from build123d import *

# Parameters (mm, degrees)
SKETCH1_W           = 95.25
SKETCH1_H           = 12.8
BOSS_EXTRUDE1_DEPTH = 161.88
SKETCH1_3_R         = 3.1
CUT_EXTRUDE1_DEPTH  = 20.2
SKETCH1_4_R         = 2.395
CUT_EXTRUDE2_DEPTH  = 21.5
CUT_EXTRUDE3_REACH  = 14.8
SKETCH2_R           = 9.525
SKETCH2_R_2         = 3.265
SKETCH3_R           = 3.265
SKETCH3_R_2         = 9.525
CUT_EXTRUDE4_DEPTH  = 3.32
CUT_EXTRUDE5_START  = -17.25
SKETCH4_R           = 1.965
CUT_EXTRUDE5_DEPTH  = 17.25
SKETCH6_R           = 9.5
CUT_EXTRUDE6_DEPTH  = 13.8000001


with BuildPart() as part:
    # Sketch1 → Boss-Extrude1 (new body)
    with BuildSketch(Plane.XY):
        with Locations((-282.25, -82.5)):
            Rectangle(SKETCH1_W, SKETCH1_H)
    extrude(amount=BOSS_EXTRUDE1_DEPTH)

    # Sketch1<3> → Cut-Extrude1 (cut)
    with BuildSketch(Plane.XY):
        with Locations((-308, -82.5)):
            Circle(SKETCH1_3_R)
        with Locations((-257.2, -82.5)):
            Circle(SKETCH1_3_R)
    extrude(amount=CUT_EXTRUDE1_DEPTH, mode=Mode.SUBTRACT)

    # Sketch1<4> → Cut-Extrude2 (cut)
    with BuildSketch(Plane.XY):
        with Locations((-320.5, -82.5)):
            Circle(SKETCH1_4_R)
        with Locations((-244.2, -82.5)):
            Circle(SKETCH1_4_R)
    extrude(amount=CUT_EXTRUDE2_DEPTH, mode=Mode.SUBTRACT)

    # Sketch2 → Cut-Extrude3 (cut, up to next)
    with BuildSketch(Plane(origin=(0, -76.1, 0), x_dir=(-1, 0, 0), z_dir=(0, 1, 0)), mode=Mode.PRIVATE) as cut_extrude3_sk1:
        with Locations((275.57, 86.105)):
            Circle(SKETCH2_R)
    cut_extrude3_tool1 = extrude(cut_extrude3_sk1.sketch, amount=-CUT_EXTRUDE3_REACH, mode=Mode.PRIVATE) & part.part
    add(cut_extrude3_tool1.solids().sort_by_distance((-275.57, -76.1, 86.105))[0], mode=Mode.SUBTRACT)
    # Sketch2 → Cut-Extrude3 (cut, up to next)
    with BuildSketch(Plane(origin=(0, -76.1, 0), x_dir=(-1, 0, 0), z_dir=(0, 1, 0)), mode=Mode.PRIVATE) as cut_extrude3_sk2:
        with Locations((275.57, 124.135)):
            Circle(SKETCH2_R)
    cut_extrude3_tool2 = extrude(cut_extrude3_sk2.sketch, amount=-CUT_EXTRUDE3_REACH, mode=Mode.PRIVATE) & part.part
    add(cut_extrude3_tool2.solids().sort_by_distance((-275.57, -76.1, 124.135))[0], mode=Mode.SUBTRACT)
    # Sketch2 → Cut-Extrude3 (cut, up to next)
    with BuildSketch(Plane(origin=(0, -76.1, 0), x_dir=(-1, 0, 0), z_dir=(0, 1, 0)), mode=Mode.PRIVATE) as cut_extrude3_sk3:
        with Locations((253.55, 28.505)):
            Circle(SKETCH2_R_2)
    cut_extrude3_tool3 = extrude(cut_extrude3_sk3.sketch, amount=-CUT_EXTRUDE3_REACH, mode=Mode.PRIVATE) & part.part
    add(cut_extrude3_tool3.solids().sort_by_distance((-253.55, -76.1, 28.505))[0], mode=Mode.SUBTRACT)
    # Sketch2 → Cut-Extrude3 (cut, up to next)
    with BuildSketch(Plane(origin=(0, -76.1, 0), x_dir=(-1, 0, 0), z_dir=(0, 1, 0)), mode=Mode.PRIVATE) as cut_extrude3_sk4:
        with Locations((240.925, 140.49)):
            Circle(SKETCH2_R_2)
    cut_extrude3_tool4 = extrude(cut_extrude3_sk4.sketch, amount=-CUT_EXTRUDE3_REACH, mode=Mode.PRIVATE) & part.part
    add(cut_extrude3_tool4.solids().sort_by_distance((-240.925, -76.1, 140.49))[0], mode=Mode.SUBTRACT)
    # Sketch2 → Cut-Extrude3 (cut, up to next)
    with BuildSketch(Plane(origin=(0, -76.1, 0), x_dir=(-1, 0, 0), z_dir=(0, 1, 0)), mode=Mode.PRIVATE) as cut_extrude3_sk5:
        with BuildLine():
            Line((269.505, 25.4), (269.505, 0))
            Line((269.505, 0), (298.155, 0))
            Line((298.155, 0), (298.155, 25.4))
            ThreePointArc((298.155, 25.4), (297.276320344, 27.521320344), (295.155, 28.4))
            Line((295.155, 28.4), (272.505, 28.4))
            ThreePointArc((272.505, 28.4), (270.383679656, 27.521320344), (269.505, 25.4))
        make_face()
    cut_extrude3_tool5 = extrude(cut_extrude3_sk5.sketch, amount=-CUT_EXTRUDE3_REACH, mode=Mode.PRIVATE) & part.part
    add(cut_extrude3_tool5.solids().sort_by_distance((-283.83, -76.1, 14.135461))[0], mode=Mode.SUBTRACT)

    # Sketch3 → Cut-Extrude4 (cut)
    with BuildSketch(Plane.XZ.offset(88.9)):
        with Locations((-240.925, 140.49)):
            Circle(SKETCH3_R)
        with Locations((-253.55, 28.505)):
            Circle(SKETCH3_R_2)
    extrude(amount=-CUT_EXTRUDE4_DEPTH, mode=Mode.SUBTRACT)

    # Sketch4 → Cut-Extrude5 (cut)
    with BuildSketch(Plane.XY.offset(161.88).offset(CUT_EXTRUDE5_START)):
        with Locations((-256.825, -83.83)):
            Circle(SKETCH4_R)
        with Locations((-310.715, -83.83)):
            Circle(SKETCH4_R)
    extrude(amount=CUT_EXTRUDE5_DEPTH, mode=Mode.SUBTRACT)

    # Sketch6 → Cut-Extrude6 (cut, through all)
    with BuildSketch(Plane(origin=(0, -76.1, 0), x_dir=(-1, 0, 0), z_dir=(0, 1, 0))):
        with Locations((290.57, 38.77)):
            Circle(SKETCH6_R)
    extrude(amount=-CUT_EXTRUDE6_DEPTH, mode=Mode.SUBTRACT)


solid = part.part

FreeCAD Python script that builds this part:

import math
import FreeCAD as App
import Part
import Sketcher
Q = App.Units.Quantity

doc = App.newDocument("Part")
body = doc.addObject("PartDesign::Body", "Body")

sketch1 = body.newObject("Sketcher::SketchObject", "Sketch")
sketch1.AttachmentSupport = (doc.getObject("XY_Plane"), [""])
sketch1.MapMode = "FlatFace"
sketch1.addGeometry([
    Part.LineSegment(App.Vector(-329.875, -76.1, 0), App.Vector(-329.875, -88.9, 0)),
    Part.LineSegment(App.Vector(-329.875, -88.9, 0), App.Vector(-234.625, -88.9, 0)),
    Part.LineSegment(App.Vector(-234.625, -88.9, 0), App.Vector(-234.625, -76.1, 0)),
    Part.LineSegment(App.Vector(-234.625, -76.1, 0), App.Vector(-329.875, -76.1, 0)),
], False)
sketch1.addConstraint([
    Sketcher.Constraint("Coincident", 0, 2, 1, 1),
    Sketcher.Constraint("Coincident", 1, 2, 2, 1),
    Sketcher.Constraint("Coincident", 2, 2, 3, 1),
    Sketcher.Constraint("Coincident", 3, 2, 0, 1),
    Sketcher.Constraint("Vertical", 0),
    Sketcher.Constraint("Horizontal", 1),
    Sketcher.Constraint("Vertical", 2),
    Sketcher.Constraint("Horizontal", 3),
    Sketcher.Constraint("DistanceY", 0, 2, 0, 1, Q("12.8 mm")),
    Sketcher.Constraint("DistanceX", 1, 1, 1, 2, Q("95.25 mm")),
    Sketcher.Constraint("DistanceY", 0, 2, -1, 1, Q("88.9 mm")),
    Sketcher.Constraint("DistanceX", 0, 2, -1, 1, Q("329.875 mm")),
])
pad1 = body.newObject("PartDesign::Pad", "Pad")
pad1.Profile = sketch1
pad1.Length = 161.88

sketch2 = body.newObject("Sketcher::SketchObject", "Sketch001")
sketch2.AttachmentSupport = (doc.getObject("XY_Plane"), [""])
sketch2.MapMode = "FlatFace"
sketch2.addGeometry([
    Part.Circle(App.Vector(-308, -82.5, 0), App.Vector(0, 0, 1), 3.1),
    Part.Circle(App.Vector(-257.2, -82.5, 0), App.Vector(0, 0, 1), 3.1),
], False)
sketch2.addConstraint([
    Sketcher.Constraint("Equal", 0, 1),
    Sketcher.Constraint("Horizontal", 0, 3, 1, 3),
    Sketcher.Constraint("Diameter", 0, Q("6.2 mm")),
    Sketcher.Constraint("DistanceX", 0, 3, -1, 1, Q("308 mm")),
    Sketcher.Constraint("DistanceY", 0, 3, -1, 1, Q("82.5 mm")),
    Sketcher.Constraint("DistanceX", 1, 3, -1, 1, Q("257.2 mm")),
])
pocket1 = body.newObject("PartDesign::Pocket", "Pocket")
pocket1.Profile = sketch2
pocket1.Length = 20.2
pocket1.Reversed = True

sketch3 = body.newObject("Sketcher::SketchObject", "Sketch002")
sketch3.AttachmentSupport = (doc.getObject("XY_Plane"), [""])
sketch3.MapMode = "FlatFace"
sketch3.addGeometry([
    Part.Circle(App.Vector(-320.5, -82.5, 0), App.Vector(0, 0, 1), 2.395),
    Part.Circle(App.Vector(-244.2, -82.5, 0), App.Vector(0, 0, 1), 2.395),
], False)
sketch3.addConstraint([
    Sketcher.Constraint("Equal", 0, 1),
    Sketcher.Constraint("Horizontal", 0, 3, 1, 3),
    Sketcher.Constraint("Diameter", 0, Q("4.79 mm")),
    Sketcher.Constraint("DistanceX", 0, 3, -1, 1, Q("320.5 mm")),
    Sketcher.Constraint("DistanceY", 0, 3, -1, 1, Q("82.5 mm")),
    Sketcher.Constraint("DistanceX", 1, 3, -1, 1, Q("244.2 mm")),
])
pocket2 = body.newObject("PartDesign::Pocket", "Pocket001")
pocket2.Profile = sketch3
pocket2.Length = 21.5
pocket2.Reversed = True

sketch4 = body.newObject("Sketcher::SketchObject", "Sketch003")
sketch4.AttachmentSupport = (doc.getObject("XZ_Plane"), [""])
sketch4.MapMode = "FlatFace"
sketch4.AttachmentOffset = App.Placement(App.Vector(0, 0, 76.1), App.Rotation())
sketch4.addGeometry(Part.Circle(App.Vector(-275.57, 86.105, 0), App.Vector(0, 0, 1), 9.525), False)
sketch4.addConstraint([
    Sketcher.Constraint("Diameter", 0, Q("19.05 mm")),
    Sketcher.Constraint("DistanceX", 0, 3, -1, 1, Q("275.57 mm")),
    Sketcher.Constraint("DistanceY", -1, 1, 0, 3, Q("86.105 mm")),
])
pocket3 = body.newObject("PartDesign::Pocket", "Pocket002")
pocket3.Profile = sketch4
pocket3.Type = "UpToFirst"
pocket3.Reversed = True

sketch5 = body.newObject("Sketcher::SketchObject", "Sketch004")
sketch5.AttachmentSupport = (doc.getObject("XZ_Plane"), [""])
sketch5.MapMode = "FlatFace"
sketch5.AttachmentOffset = App.Placement(App.Vector(0, 0, 76.1), App.Rotation())
sketch5.addGeometry(Part.Circle(App.Vector(-275.57, 124.135, 0), App.Vector(0, 0, 1), 9.525), False)
sketch5.addConstraint([
    Sketcher.Constraint("Diameter", 0, Q("19.05 mm")),
    Sketcher.Constraint("DistanceX", 0, 3, -1, 1, Q("275.57 mm")),
    Sketcher.Constraint("DistanceY", -1, 1, 0, 3, Q("124.135 mm")),
])
pocket4 = body.newObject("PartDesign::Pocket", "Pocket003")
pocket4.Profile = sketch5
pocket4.Type = "UpToFirst"
pocket4.Reversed = True

sketch6 = body.newObject("Sketcher::SketchObject", "Sketch005")
sketch6.AttachmentSupport = (doc.getObject("XZ_Plane"), [""])
sketch6.MapMode = "FlatFace"
sketch6.AttachmentOffset = App.Placement(App.Vector(0, 0, 76.1), App.Rotation())
sketch6.addGeometry(Part.Circle(App.Vector(-253.55, 28.505, 0), App.Vector(0, 0, 1), 3.265), False)
sketch6.addConstraint([
    Sketcher.Constraint("Diameter", 0, Q("6.53 mm")),
    Sketcher.Constraint("DistanceX", 0, 3, -1, 1, Q("253.55 mm")),
    Sketcher.Constraint("DistanceY", -1, 1, 0, 3, Q("28.505 mm")),
])
pocket5 = body.newObject("PartDesign::Pocket", "Pocket004")
pocket5.Profile = sketch6
pocket5.Type = "UpToFirst"
pocket5.Reversed = True

sketch7 = body.newObject("Sketcher::SketchObject", "Sketch006")
sketch7.AttachmentSupport = (doc.getObject("XZ_Plane"), [""])
sketch7.MapMode = "FlatFace"
sketch7.AttachmentOffset = App.Placement(App.Vector(0, 0, 76.1), App.Rotation())
sketch7.addGeometry(Part.Circle(App.Vector(-240.925, 140.49, 0), App.Vector(0, 0, 1), 3.265), False)
sketch7.addConstraint([
    Sketcher.Constraint("Diameter", 0, Q("6.53 mm")),
    Sketcher.Constraint("DistanceY", -1, 1, 0, 3, Q("140.49 mm")),
    Sketcher.Constraint("DistanceX", 0, 3, -1, 1, Q("240.925 mm")),
])
pocket6 = body.newObject("PartDesign::Pocket", "Pocket005")
pocket6.Profile = sketch7
pocket6.Type = "UpToFirst"
pocket6.Reversed = True

sketch8 = body.newObject("Sketcher::SketchObject", "Sketch007")
sketch8.AttachmentSupport = (doc.getObject("XZ_Plane"), [""])
sketch8.MapMode = "FlatFace"
sketch8.AttachmentOffset = App.Placement(App.Vector(0, 0, 76.1), App.Rotation())
sketch8.addGeometry([
    Part.LineSegment(App.Vector(-269.505, 25.4, 0), App.Vector(-269.505, 0, 0)),
    Part.LineSegment(App.Vector(-269.505, 0, 0), App.Vector(-298.155, 0, 0)),
    Part.LineSegment(App.Vector(-298.155, 0, 0), App.Vector(-298.155, 25.4, 0)),
    Part.ArcOfCircle(Part.Circle(App.Vector(-295.155, 25.4, 0), App.Vector(0, 0, 1), 3), math.radians(90), math.radians(180)),
    Part.LineSegment(App.Vector(-295.155, 28.4, 0), App.Vector(-272.505, 28.4, 0)),
    Part.ArcOfCircle(Part.Circle(App.Vector(-272.505, 25.4, 0), App.Vector(0, 0, 1), 3), math.radians(0), math.radians(90)),
], False)
sketch8.addConstraint([
    Sketcher.Constraint("Coincident", 0, 2, 1, 1),
    Sketcher.Constraint("Coincident", 1, 2, 2, 1),
    Sketcher.Constraint("Tangent", 2, 2, 3, 2),
    Sketcher.Constraint("Tangent", 3, 1, 4, 1),
    Sketcher.Constraint("Tangent", 4, 2, 5, 2),
    Sketcher.Constraint("Tangent", 5, 1, 0, 1),
    Sketcher.Constraint("Vertical", 0),
    Sketcher.Constraint("Horizontal", 1),
    Sketcher.Constraint("Vertical", 2),
    Sketcher.Constraint("Horizontal", 4),
    Sketcher.Constraint("Equal", 3, 5),
    Sketcher.Constraint("PointOnObject", 0, 2, -1),
    Sketcher.Constraint("Radius", 3, Q("3 mm")),
    Sketcher.Constraint("DistanceY", 0, 2, 0, 1, Q("25.4 mm")),
    Sketcher.Constraint("DistanceX", 1, 2, 1, 1, Q("28.65 mm")),
    Sketcher.Constraint("DistanceX", 3, 3, -1, 1, Q("295.155 mm")),
])
pocket7 = body.newObject("PartDesign::Pocket", "Pocket006")
pocket7.Profile = sketch8
pocket7.Type = "UpToFirst"
pocket7.Reversed = True

sketch9 = body.newObject("Sketcher::SketchObject", "Sketch008")
sketch9.AttachmentSupport = (doc.getObject("XZ_Plane"), [""])
sketch9.MapMode = "FlatFace"
sketch9.AttachmentOffset = App.Placement(App.Vector(0, 0, 88.9), App.Rotation())
sketch9.addGeometry([
    Part.Circle(App.Vector(-240.925, 140.49, 0), App.Vector(0, 0, 1), 3.265),
    Part.Circle(App.Vector(-253.55, 28.505, 0), App.Vector(0, 0, 1), 9.525),
], False)
sketch9.addConstraint([
    Sketcher.Constraint("Diameter", 0, Q("6.53 mm")),
    Sketcher.Constraint("Diameter", 1, Q("19.05 mm")),
    Sketcher.Constraint("DistanceY", -1, 1, 0, 3, Q("140.49 mm")),
    Sketcher.Constraint("DistanceX", 1, 3, -1, 1, Q("253.55 mm")),
    Sketcher.Constraint("DistanceX", 0, 3, -1, 1, Q("240.925 mm")),
    Sketcher.Constraint("DistanceY", -1, 1, 1, 3, Q("28.505 mm")),
])
pocket8 = body.newObject("PartDesign::Pocket", "Pocket007")
pocket8.Profile = sketch9
pocket8.Length = 3.32

sketch10 = body.newObject("Sketcher::SketchObject", "Sketch009")
sketch10.AttachmentSupport = (doc.getObject("XY_Plane"), [""])
sketch10.MapMode = "FlatFace"
sketch10.AttachmentOffset = App.Placement(App.Vector(0, 0, 144.63), App.Rotation())
sketch10.addGeometry([
    Part.Circle(App.Vector(-256.825, -83.83, 0), App.Vector(0, 0, 1), 1.965),
    Part.Circle(App.Vector(-310.715, -83.83, 0), App.Vector(0, 0, 1), 1.965),
], False)
sketch10.addConstraint([
    Sketcher.Constraint("Equal", 0, 1),
    Sketcher.Constraint("Horizontal", 0, 3, 1, 3),
    Sketcher.Constraint("Diameter", 0, Q("3.93 mm")),
    Sketcher.Constraint("DistanceY", 0, 3, -1, 1, Q("83.83 mm")),
    Sketcher.Constraint("DistanceX", 1, 3, 0, 3, Q("53.89 mm")),
    Sketcher.Constraint("DistanceX", 0, 3, -1, 1, Q("256.825 mm")),
])
pocket9 = body.newObject("PartDesign::Pocket", "Pocket008")
pocket9.Profile = sketch10
pocket9.Length = 17.25
pocket9.Reversed = True

sketch11 = body.newObject("Sketcher::SketchObject", "Sketch010")
sketch11.AttachmentSupport = (doc.getObject("XZ_Plane"), [""])
sketch11.MapMode = "FlatFace"
sketch11.AttachmentOffset = App.Placement(App.Vector(0, 0, 76.1), App.Rotation())
sketch11.addGeometry(Part.Circle(App.Vector(-290.57, 38.77, 0), App.Vector(0, 0, 1), 9.5), False)
sketch11.addConstraint([
    Sketcher.Constraint("Diameter", 0, Q("19 mm")),
    Sketcher.Constraint("DistanceX", 0, 3, -1, 1, Q("290.57 mm")),
    Sketcher.Constraint("DistanceY", -1, 1, 0, 3, Q("38.77 mm")),
])
pocket10 = body.newObject("PartDesign::Pocket", "Pocket009")
pocket10.Profile = sketch11
pocket10.Type = "ThroughAll"
pocket10.Reversed = True

doc.recompute()
